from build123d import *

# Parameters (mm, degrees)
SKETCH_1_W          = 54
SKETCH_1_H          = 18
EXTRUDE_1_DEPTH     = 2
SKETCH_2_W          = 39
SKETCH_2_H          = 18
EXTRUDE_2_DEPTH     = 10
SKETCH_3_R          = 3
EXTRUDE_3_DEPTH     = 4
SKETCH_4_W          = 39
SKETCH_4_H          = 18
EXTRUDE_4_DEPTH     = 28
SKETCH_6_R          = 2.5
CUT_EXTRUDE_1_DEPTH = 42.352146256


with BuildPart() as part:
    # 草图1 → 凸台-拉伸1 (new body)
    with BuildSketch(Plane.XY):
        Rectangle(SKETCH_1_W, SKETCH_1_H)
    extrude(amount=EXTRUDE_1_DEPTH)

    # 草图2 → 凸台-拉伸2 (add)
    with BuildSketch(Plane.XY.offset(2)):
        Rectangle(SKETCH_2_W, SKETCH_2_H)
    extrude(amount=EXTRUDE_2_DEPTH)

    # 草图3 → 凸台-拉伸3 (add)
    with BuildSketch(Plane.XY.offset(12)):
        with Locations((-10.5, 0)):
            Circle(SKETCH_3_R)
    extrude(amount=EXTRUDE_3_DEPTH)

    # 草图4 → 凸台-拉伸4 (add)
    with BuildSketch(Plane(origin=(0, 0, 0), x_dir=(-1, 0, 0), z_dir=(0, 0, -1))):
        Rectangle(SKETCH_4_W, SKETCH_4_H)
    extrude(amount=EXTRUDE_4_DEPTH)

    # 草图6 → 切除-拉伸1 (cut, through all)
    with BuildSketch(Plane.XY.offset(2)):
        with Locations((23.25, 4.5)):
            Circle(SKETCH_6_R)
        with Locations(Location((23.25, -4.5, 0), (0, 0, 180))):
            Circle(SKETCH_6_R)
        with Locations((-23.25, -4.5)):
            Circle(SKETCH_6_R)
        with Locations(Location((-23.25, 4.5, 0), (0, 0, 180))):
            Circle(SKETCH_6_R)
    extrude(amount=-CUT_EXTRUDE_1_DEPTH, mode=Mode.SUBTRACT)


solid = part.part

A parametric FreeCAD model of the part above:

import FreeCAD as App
import Part
import Sketcher

doc = App.newDocument("Part")
body = doc.addObject("PartDesign::Body", "Body")

# Sketch on XY plane
sketch1 = body.newObject("Sketcher::SketchObject", "Sketch")
sketch1.AttachmentSupport = (doc.getObject("XY_Plane"), [""])
sketch1.MapMode = "FlatFace"
sketch1.addGeometry([
    Part.LineSegment(App.Vector(-27, 9, 0), App.Vector(-27, -9, 0)),
    Part.LineSegment(App.Vector(-27, -9, 0), App.Vector(27, -9, 0)),
    Part.LineSegment(App.Vector(27, -9, 0), App.Vector(27, 9, 0)),
    Part.LineSegment(App.Vector(27, 9, 0), App.Vector(-27, 9, 0)),
], False)
sketch1.addConstraint([
    Sketcher.Constraint("Coincident", 0, 2, 1, 1),
    Sketcher.Constraint("Coincident", 1, 2, 2, 1),
    Sketcher.Constraint("Coincident", 2, 2, 3, 1),
    Sketcher.Constraint("Coincident", 3, 2, 0, 1),
    Sketcher.Constraint("Vertical", 0),
    Sketcher.Constraint("Horizontal", 1),
    Sketcher.Constraint("Vertical", 2),
    Sketcher.Constraint("Horizontal", 3),
    Sketcher.Constraint("Symmetric", 0, 2, 2, 2, -1, 1),
    Sketcher.Constraint("DistanceX", 1, 1, 1, 2, 54.0),
    Sketcher.Constraint("DistanceY", 0, 2, 0, 1, 18.0),
])
pad1 = body.newObject("PartDesign::Pad", "Pad")
pad1.Profile = sketch1
pad1.Length = 2

# Sketch on XY plane
sketch2 = body.newObject("Sketcher::SketchObject", "Sketch001")
sketch2.AttachmentSupport = (doc.getObject("XY_Plane"), [""])
sketch2.MapMode = "FlatFace"
sketch2.AttachmentOffset = App.Placement(App.Vector(0, 0, 2), App.Rotation())
sketch2.addGeometry([
    Part.LineSegment(App.Vector(-20, 9, 0), App.Vector(-20, -9, 0)),
    Part.LineSegment(App.Vector(-20, -9, 0), App.Vector(20, -9, 0)),
    Part.LineSegment(App.Vector(20, -9, 0), App.Vector(20, 9, 0)),
    Part.LineSegment(App.Vector(20, 9, 0), App.Vector(-20, 9, 0)),
], False)
sketch2.addConstraint([
    Sketcher.Constraint("Coincident", 0, 2, 1, 1),
    Sketcher.Constraint("Coincident", 1, 2, 2, 1),
    Sketcher.Constraint("Coincident", 2, 2, 3, 1),
    Sketcher.Constraint("Coincident", 3, 2, 0, 1),
    Sketcher.Constraint("Vertical", 0),
    Sketcher.Constraint("Horizontal", 1),
    Sketcher.Constraint("Vertical", 2),
    Sketcher.Constraint("Horizontal", 3),
    Sketcher.Constraint("Symmetric", 0, 2, 2, 2, -1, 1),
    Sketcher.Constraint("DistanceX", 1, 1, 1, 2, 39.0),
    Sketcher.Constraint("DistanceY", 0, 2, 0, 1, 18.0),
])
pad2 = body.newObject("PartDesign::Pad", "Pad001")
pad2.Profile = sketch2
pad2.Length = 10

# Sketch on XY plane
sketch3 = body.newObject("Sketcher::SketchObject", "Sketch002")
sketch3.AttachmentSupport = (doc.getObject("XY_Plane"), [""])
sketch3.MapMode = "FlatFace"
sketch3.AttachmentOffset = App.Placement(App.Vector(0, 0, 12), App.Rotation())
sketch3.addGeometry(Part.Circle(App.Vector(-10.5, 0, 0), App.Vector(0, 0, 1), 3), False)
sketch3.addConstraint([
    Sketcher.Constraint("PointOnObject", 0, 3, -1),
    Sketcher.Constraint("Diameter", 0, 6.0),
    Sketcher.Constraint("DistanceX", 0, 3, -1, 1, 10.5),
])
pad3 = body.newObject("PartDesign::Pad", "Pad002")
pad3.Profile = sketch3
pad3.Length = 4

# Sketch on XY plane
sketch4 = body.newObject("Sketcher::SketchObject", "Sketch003")
sketch4.AttachmentSupport = (doc.getObject("XY_Plane"), [""])
sketch4.MapMode = "FlatFace"
sketch4.addGeometry([
    Part.LineSegment(App.Vector(20, 9, 0), App.Vector(20, -9, 0)),
    Part.LineSegment(App.Vector(20, -9, 0), App.Vector(-20, -9, 0)),
    Part.LineSegment(App.Vector(-20, -9, 0), App.Vector(-20, 9, 0)),
    Part.LineSegment(App.Vector(-20, 9, 0), App.Vector(20, 9, 0)),
], False)
sketch4.addConstraint([
    Sketcher.Constraint("Coincident", 0, 2, 1, 1),
    Sketcher.Constraint("Coincident", 1, 2, 2, 1),
    Sketcher.Constraint("Coincident", 2, 2, 3, 1),
    Sketcher.Constraint("Coincident", 3, 2, 0, 1),
    Sketcher.Constraint("Vertical", 0),
    Sketcher.Constraint("Horizontal", 1),
    Sketcher.Constraint("Vertical", 2),
    Sketcher.Constraint("Horizontal", 3),
    Sketcher.Constraint("Symmetric", 0, 2, 2, 2, -1, 1),
    Sketcher.Constraint("DistanceX", 1, 2, 1, 1, 39.0),
    Sketcher.Constraint("DistanceY", 0, 2, 0, 1, 18.0),
])
pad4 = body.newObject("PartDesign::Pad", "Pad003")
pad4.Profile = sketch4
pad4.Length = 28
pad4.Reversed = True

# Sketch on XY plane
sketch5 = body.newObject("Sketcher::SketchObject", "Sketch004")
sketch5.AttachmentSupport = (doc.getObject("XY_Plane"), [""])
sketch5.MapMode = "FlatFace"
sketch5.AttachmentOffset = App.Placement(App.Vector(0, 0, 2), App.Rotation())
sketch5.addGeometry([
    Part.Circle(App.Vector(23.2, 4.5, 0), App.Vector(0, 0, 1), 2.5),
    Part.Circle(App.Vector(23.2, -4.5, 0), App.Vector(0, 0, 1), 2.5),
    Part.Circle(App.Vector(-23.2, -4.5, 0), App.Vector(0, 0, 1), 2.5),
    Part.Circle(App.Vector(-23.2, 4.5, 0), App.Vector(0, 0, 1), 2.5),
], False)
sketch5.addConstraint([
    Sketcher.Constraint("Equal", 0, 1),
    Sketcher.Constraint("Equal", 1, 2),
    Sketcher.Constraint("Equal", 2, 3),
    Sketcher.Constraint("Symmetric", 0, 3, 2, 3, -1, 1),
    Sketcher.Constraint("Symmetric", 1, 3, 3, 3, -1, 1),
    Sketcher.Constraint("Symmetric", 1, 3, 2, 3, -2),
    Sketcher.Constraint("Diameter", 0, 5.0),
    Sketcher.Constraint("DistanceY", 1, 3, 0, 3, 9.0),
    Sketcher.Constraint("DistanceX", 2, 3, 1, 3, 46.5),
])
pocket1 = body.newObject("PartDesign::Pocket", "Pocket")
pocket1.Profile = sketch5
pocket1.Type = "ThroughAll"

doc.recompute()
